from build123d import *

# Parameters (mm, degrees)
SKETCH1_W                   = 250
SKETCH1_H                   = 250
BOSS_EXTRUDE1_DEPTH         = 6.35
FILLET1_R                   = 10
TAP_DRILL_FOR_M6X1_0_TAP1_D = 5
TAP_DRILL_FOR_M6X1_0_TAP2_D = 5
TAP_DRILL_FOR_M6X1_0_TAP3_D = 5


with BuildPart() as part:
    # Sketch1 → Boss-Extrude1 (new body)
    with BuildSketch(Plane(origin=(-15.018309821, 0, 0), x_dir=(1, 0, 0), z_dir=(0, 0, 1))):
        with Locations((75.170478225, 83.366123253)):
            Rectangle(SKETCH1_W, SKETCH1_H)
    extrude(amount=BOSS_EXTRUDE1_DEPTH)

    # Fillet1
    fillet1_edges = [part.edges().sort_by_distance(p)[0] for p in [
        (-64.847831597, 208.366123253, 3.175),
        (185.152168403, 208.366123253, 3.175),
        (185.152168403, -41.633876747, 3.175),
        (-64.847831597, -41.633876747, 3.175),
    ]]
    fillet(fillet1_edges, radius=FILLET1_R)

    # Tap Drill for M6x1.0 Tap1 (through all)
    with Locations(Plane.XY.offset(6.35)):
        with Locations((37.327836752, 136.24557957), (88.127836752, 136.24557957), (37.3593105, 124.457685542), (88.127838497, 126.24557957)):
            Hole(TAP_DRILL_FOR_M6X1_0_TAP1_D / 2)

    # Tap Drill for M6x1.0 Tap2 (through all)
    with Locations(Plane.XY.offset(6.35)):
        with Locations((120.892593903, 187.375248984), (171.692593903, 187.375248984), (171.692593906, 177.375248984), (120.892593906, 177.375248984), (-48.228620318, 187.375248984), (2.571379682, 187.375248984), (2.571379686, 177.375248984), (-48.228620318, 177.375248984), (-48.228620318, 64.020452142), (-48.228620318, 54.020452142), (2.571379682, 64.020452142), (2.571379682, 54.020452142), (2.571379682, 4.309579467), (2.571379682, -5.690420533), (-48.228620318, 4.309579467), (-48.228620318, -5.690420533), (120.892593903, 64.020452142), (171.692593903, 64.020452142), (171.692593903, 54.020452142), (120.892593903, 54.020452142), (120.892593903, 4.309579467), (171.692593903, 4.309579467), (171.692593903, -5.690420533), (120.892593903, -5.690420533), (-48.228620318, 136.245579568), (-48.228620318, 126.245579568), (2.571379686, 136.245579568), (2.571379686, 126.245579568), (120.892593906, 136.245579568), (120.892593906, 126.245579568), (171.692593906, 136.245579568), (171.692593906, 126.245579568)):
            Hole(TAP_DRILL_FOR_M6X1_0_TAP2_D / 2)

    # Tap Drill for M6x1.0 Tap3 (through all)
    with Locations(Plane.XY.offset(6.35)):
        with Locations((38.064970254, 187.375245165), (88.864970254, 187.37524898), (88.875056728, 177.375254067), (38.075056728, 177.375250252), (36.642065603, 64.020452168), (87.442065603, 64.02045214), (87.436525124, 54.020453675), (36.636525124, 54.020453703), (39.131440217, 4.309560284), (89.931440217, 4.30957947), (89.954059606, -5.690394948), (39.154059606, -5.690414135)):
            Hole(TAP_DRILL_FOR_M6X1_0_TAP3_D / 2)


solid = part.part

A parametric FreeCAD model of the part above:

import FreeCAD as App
import Part
import Sketcher
Q = App.Units.Quantity


def edges_at(feature, points):
    """Names of the edges that pass closest to the given points."""
    edges = feature.Shape.Edges
    near = lambda p: min(range(len(edges)), key=lambda i: edges[i].distToShape(Part.Vertex(*p))[0])
    return sorted({f"Edge{near(p) + 1}" for p in points})


def add_polygon(sketch, points):
    """Adds a closed chain of lines whose ends are joined by coincident constraints."""
    first, n = sketch.GeometryCount, len(points)
    for a, b in zip(points, points[1:] + points[:1]):
        sketch.addGeometry(Part.LineSegment(App.Vector(*a, 0), App.Vector(*b, 0)), False)
    for i in range(n):
        sketch.addConstraint(Sketcher.Constraint("Coincident", first + i, 2, first + (i + 1) % n, 1))

doc = App.newDocument("Part")
body = doc.addObject("PartDesign::Body", "Body")

# Sketch on XY plane
sketch1 = doc.addObject("Sketcher::SketchObject", "Sketch")
body.addObject(sketch1)
sketch1.AttachmentSupport = (doc.XY_Plane, [""])
sketch1.MapMode = "FlatFace"
add_polygon(sketch1, [(-65, 208), (-65, -42), (185, -42), (185, 208)])  # lines 0-3
sketch1.addConstraint(Sketcher.Constraint("Vertical", 0))
sketch1.addConstraint(Sketcher.Constraint("Horizontal", 1))
sketch1.addConstraint(Sketcher.Constraint("Vertical", 2))
sketch1.addConstraint(Sketcher.Constraint("Horizontal", 3))
sketch1.addConstraint(Sketcher.Constraint("Equal", 3, 0))
sketch1.addConstraint(Sketcher.Constraint("DistanceX", 1, 1, 1, 2, Q("250 mm")))
sketch1.addConstraint(Sketcher.Constraint("DistanceX", 0, 2, -1, 1, Q("64.847832 mm")))
sketch1.addConstraint(Sketcher.Constraint("DistanceY", 0, 2, -1, 1, Q("41.633877 mm")))
pad1 = doc.addObject("PartDesign::Pad", "Pad")
body.addObject(pad1)
pad1.Profile = sketch1
pad1.Length = 6.35
doc.recompute()

fillet = doc.addObject("PartDesign::Fillet", "Fillet")
body.addObject(fillet)
fillet.Base = (pad1, edges_at(pad1, [
    (-64.848, 208.366, 3.175),
    (185.152, 208.366, 3.175),
    (185.152, -41.634, 3.175),
    (-64.848, -41.634, 3.175),
]))
fillet.Radius = 10

# Sketch on XY plane
sketch2 = doc.addObject("Sketcher::SketchObject", "Sketch001")
body.addObject(sketch2)
sketch2.AttachmentSupport = (doc.XY_Plane, [""])
sketch2.MapMode = "FlatFace"
sketch2.AttachmentOffset = App.Placement(App.Vector(0, 0, 6.35), App.Rotation())
sketch2.addGeometry(Part.Circle(App.Vector(37.3, 136.2, 0), App.Vector(0, 0, 1), 2.5), False)
sketch2.addGeometry(Part.Circle(App.Vector(88.1, 136.2, 0), App.Vector(0, 0, 1), 2.5), False)
sketch2.addGeometry(Part.Circle(App.Vector(37.4, 124.5, 0), App.Vector(0, 0, 1), 2.5), False)
sketch2.addGeometry(Part.Circle(App.Vector(88.1, 126.2, 0), App.Vector(0, 0, 1), 2.5), False)
sketch2.addConstraint(Sketcher.Constraint("Equal", 0, 1))
sketch2.addConstraint(Sketcher.Constraint("Equal", 1, 2))
sketch2.addConstraint(Sketcher.Constraint("Equal", 2, 3))
sketch2.addConstraint(Sketcher.Constraint("Horizontal", 0, 3, 1, 3))
sketch2.addConstraint(Sketcher.Constraint("Vertical", 1, 3, 3, 3))
sketch2.addConstraint(Sketcher.Constraint("Diameter", 0, Q("5 mm")))
sketch2.addConstraint(Sketcher.Constraint("DistanceY", 3, 3, 1, 3, Q("10 mm")))
sketch2.addConstraint(Sketcher.Constraint("DistanceX", 0, 3, 1, 3, Q("50.8 mm")))
sketch2.addConstraint(Sketcher.Constraint("DistanceY", -1, 1, 0, 3, Q("136.24558 mm")))
sketch2.addConstraint(Sketcher.Constraint("DistanceX", -1, 1, 2, 3, Q("37.35931 mm")))
sketch2.addConstraint(Sketcher.Constraint("DistanceX", -1, 1, 3, 3, Q("88.127838 mm")))
sketch2.addConstraint(Sketcher.Constraint("DistanceY", -1, 1, 2, 3, Q("124.457686 mm")))
doc.recompute()
hole = doc.addObject("PartDesign::Hole", "Hole")
body.addObject(hole)
hole.Profile = sketch2
hole.ThreadType = "None"
hole.Diameter = 5
hole.DepthType = "ThroughAll"

# Sketch on XY plane
sketch3 = doc.addObject("Sketcher::SketchObject", "Sketch002")
body.addObject(sketch3)
sketch3.AttachmentSupport = (doc.XY_Plane, [""])
sketch3.MapMode = "FlatFace"
sketch3.AttachmentOffset = App.Placement(App.Vector(0, 0, 6.35), App.Rotation())
sketch3.addGeometry(Part.Circle(App.Vector(120.9, 187.4, 0), App.Vector(0, 0, 1), 2.5), False)
sketch3.addGeometry(Part.Circle(App.Vector(171.7, 187.4, 0), App.Vector(0, 0, 1), 2.5), False)
sketch3.addGeometry(Part.Circle(App.Vector(171.7, 177.4, 0), App.Vector(0, 0, 1), 2.5), False)
sketch3.addGeometry(Part.Circle(App.Vector(120.9, 177.4, 0), App.Vector(0, 0, 1), 2.5), False)
sketch3.addGeometry(Part.Circle(App.Vector(-48.2, 187.4, 0), App.Vector(0, 0, 1), 2.5), False)
sketch3.addGeometry(Part.Circle(App.Vector(2.6, 187.4, 0), App.Vector(0, 0, 1), 2.5), False)
sketch3.addGeometry(Part.Circle(App.Vector(2.6, 177.4, 0), App.Vector(0, 0, 1), 2.5), False)
sketch3.addGeometry(Part.Circle(App.Vector(-48.2, 177.4, 0), App.Vector(0, 0, 1), 2.5), False)
sketch3.addGeometry(Part.Circle(App.Vector(-48.2, 64, 0), App.Vector(0, 0, 1), 2.5), False)
sketch3.addGeometry(Part.Circle(App.Vector(-48.2, 54, 0), App.Vector(0, 0, 1), 2.5), False)
sketch3.addGeometry(Part.Circle(App.Vector(2.6, 64, 0), App.Vector(0, 0, 1), 2.5), False)
sketch3.addGeometry(Part.Circle(App.Vector(2.6, 54, 0), App.Vector(0, 0, 1), 2.5), False)
sketch3.addGeometry(Part.Circle(App.Vector(2.6, 4.3, 0), App.Vector(0, 0, 1), 2.5), False)
sketch3.addGeometry(Part.Circle(App.Vector(2.6, -5.7, 0), App.Vector(0, 0, 1), 2.5), False)
sketch3.addGeometry(Part.Circle(App.Vector(-48.2, 4.3, 0), App.Vector(0, 0, 1), 2.5), False)
sketch3.addGeometry(Part.Circle(App.Vector(-48.2, -5.7, 0), App.Vector(0, 0, 1), 2.5), False)
sketch3.addGeometry(Part.Circle(App.Vector(120.9, 64, 0), App.Vector(0, 0, 1), 2.5), False)
sketch3.addGeometry(Part.Circle(App.Vector(171.7, 64, 0), App.Vector(0, 0, 1), 2.5), False)
sketch3.addGeometry(Part.Circle(App.Vector(171.7, 54, 0), App.Vector(0, 0, 1), 2.5), False)
sketch3.addGeometry(Part.Circle(App.Vector(120.9, 54, 0), App.Vector(0, 0, 1), 2.5), False)
sketch3.addGeometry(Part.Circle(App.Vector(120.9, 4.3, 0), App.Vector(0, 0, 1), 2.5), False)
sketch3.addGeometry(Part.Circle(App.Vector(171.7, 4.3, 0), App.Vector(0, 0, 1), 2.5), False)
sketch3.addGeometry(Part.Circle(App.Vector(171.7, -5.7, 0), App.Vector(0, 0, 1), 2.5), False)
sketch3.addGeometry(Part.Circle(App.Vector(120.9, -5.7, 0), App.Vector(0, 0, 1), 2.5), False)
sketch3.addGeometry(Part.Circle(App.Vector(-48.2, 136.2, 0), App.Vector(0, 0, 1), 2.5), False)
sketch3.addGeometry(Part.Circle(App.Vector(-48.2, 126.2, 0), App.Vector(0, 0, 1), 2.5), False)
sketch3.addGeometry(Part.Circle(App.Vector(2.6, 136.2, 0), App.Vector(0, 0, 1), 2.5), False)
sketch3.addGeometry(Part.Circle(App.Vector(2.6, 126.2, 0), App.Vector(0, 0, 1), 2.5), False)
sketch3.addGeometry(Part.Circle(App.Vector(120.9, 136.2, 0), App.Vector(0, 0, 1), 2.5), False)
sketch3.addGeometry(Part.Circle(App.Vector(120.9, 126.2, 0), App.Vector(0, 0, 1), 2.5), False)
sketch3.addGeometry(Part.Circle(App.Vector(171.7, 136.2, 0), App.Vector(0, 0, 1), 2.5), False)
sketch3.addGeometry(Part.Circle(App.Vector(171.7, 126.2, 0), App.Vector(0, 0, 1), 2.5), False)
sketch3.addConstraint(Sketcher.Constraint("Equal", 0, 1))
sketch3.addConstraint(Sketcher.Constraint("Equal", 1, 2))
sketch3.addConstraint(Sketcher.Constraint("Equal", 2, 3))
sketch3.addConstraint(Sketcher.Constraint("Equal", 3, 4))
sketch3.addConstraint(Sketcher.Constraint("Equal", 4, 5))
sketch3.addConstraint(Sketcher.Constraint("Equal", 5, 6))
sketch3.addConstraint(Sketcher.Constraint("Equal", 6, 7))
sketch3.addConstraint(Sketcher.Constraint("Equal", 7, 8))
sketch3.addConstraint(Sketcher.Constraint("Equal", 8, 9))
sketch3.addConstraint(Sketcher.Constraint("Equal", 9, 10))
sketch3.addConstraint(Sketcher.Constraint("Equal", 10, 11))
sketch3.addConstraint(Sketcher.Constraint("Equal", 11, 12))
sketch3.addConstraint(Sketcher.Constraint("Equal", 12, 13))
sketch3.addConstraint(Sketcher.Constraint("Equal", 13, 14))
sketch3.addConstraint(Sketcher.Constraint("Equal", 14, 15))
sketch3.addConstraint(Sketcher.Constraint("Equal", 15, 16))
sketch3.addConstraint(Sketcher.Constraint("Equal", 16, 17))
sketch3.addConstraint(Sketcher.Constraint("Equal", 17, 18))
sketch3.addConstraint(Sketcher.Constraint("Equal", 18, 19))
sketch3.addConstraint(Sketcher.Constraint("Equal", 19, 20))
sketch3.addConstraint(Sketcher.Constraint("Equal", 20, 21))
sketch3.addConstraint(Sketcher.Constraint("Equal", 21, 22))
sketch3.addConstraint(Sketcher.Constraint("Equal", 22, 23))
sketch3.addConstraint(Sketcher.Constraint("Equal", 23, 24))
sketch3.addConstraint(Sketcher.Constraint("Equal", 24, 25))
sketch3.addConstraint(Sketcher.Constraint("Equal", 25, 26))
sketch3.addConstraint(Sketcher.Constraint("Equal", 26, 27))
sketch3.addConstraint(Sketcher.Constraint("Equal", 27, 28))
sketch3.addConstraint(Sketcher.Constraint("Equal", 28, 29))
sketch3.addConstraint(Sketcher.Constraint("Equal", 29, 30))
sketch3.addConstraint(Sketcher.Constraint("Equal", 30, 31))
sketch3.addConstraint(Sketcher.Constraint("Horizontal", 0, 3, 1, 3))
sketch3.addConstraint(Sketcher.Constraint("Horizontal", 2, 3, 3, 3))
sketch3.addConstraint(Sketcher.Constraint("Horizontal", 1, 3, 4, 3))
sketch3.addConstraint(Sketcher.Constraint("Horizontal", 4, 3, 5, 3))
sketch3.addConstraint(Sketcher.Constraint("Horizontal", 3, 3, 6, 3))
sketch3.addConstraint(Sketcher.Constraint("Horizontal", 6, 3, 7, 3))
sketch3.addConstraint(Sketcher.Constraint("Horizontal", 8, 3, 10, 3))
sketch3.addConstraint(Sketcher.Constraint("Horizontal", 9, 3, 11, 3))
sketch3.addConstraint(Sketcher.Constraint("Horizontal", 12, 3, 14, 3))
sketch3.addConstraint(Sketcher.Constraint("Horizontal", 13, 3, 15, 3))
sketch3.addConstraint(Sketcher.Constraint("Horizontal", 10, 3, 16, 3))
sketch3.addConstraint(Sketcher.Constraint("Horizontal", 16, 3, 17, 3))
sketch3.addConstraint(Sketcher.Constraint("Horizontal", 11, 3, 18, 3))
sketch3.addConstraint(Sketcher.Constraint("Horizontal", 18, 3, 19, 3))
sketch3.addConstraint(Sketcher.Constraint("Horizontal", 14, 3, 20, 3))
sketch3.addConstraint(Sketcher.Constraint("Horizontal", 20, 3, 21, 3))
sketch3.addConstraint(Sketcher.Constraint("Horizontal", 15, 3, 22, 3))
sketch3.addConstraint(Sketcher.Constraint("Horizontal", 22, 3, 23, 3))
sketch3.addConstraint(Sketcher.Constraint("Horizontal", 24, 3, 26, 3))
sketch3.addConstraint(Sketcher.Constraint("Horizontal", 25, 3, 27, 3))
sketch3.addConstraint(Sketcher.Constraint("Horizontal", 26, 3, 28, 3))
sketch3.addConstraint(Sketcher.Constraint("Horizontal", 27, 3, 29, 3))
sketch3.addConstraint(Sketcher.Constraint("Horizontal", 28, 3, 30, 3))
sketch3.addConstraint(Sketcher.Constraint("Horizontal", 29, 3, 31, 3))
sketch3.addConstraint(Sketcher.Constraint("Vertical", 1, 3, 2, 3))
sketch3.addConstraint(Sketcher.Constraint("Vertical", 0, 3, 3, 3))
sketch3.addConstraint(Sketcher.Constraint("Vertical", 5, 3, 6, 3))
sketch3.addConstraint(Sketcher.Constraint("Vertical", 4, 3, 7, 3))
sketch3.addConstraint(Sketcher.Constraint("Vertical", 7, 3, 8, 3))
sketch3.addConstraint(Sketcher.Constraint("Vertical", 8, 3, 9, 3))
sketch3.addConstraint(Sketcher.Constraint("Vertical", 6, 3, 10, 3))
sketch3.addConstraint(Sketcher.Constraint("Vertical", 10, 3, 11, 3))
sketch3.addConstraint(Sketcher.Constraint("Vertical", 11, 3, 12, 3))
sketch3.addConstraint(Sketcher.Constraint("Vertical", 12, 3, 13, 3))
sketch3.addConstraint(Sketcher.Constraint("Vertical", 9, 3, 14, 3))
sketch3.addConstraint(Sketcher.Constraint("Vertical", 14, 3, 15, 3))
sketch3.addConstraint(Sketcher.Constraint("Vertical", 3, 3, 16, 3))
sketch3.addConstraint(Sketcher.Constraint("Vertical", 2, 3, 17, 3))
sketch3.addConstraint(Sketcher.Constraint("Vertical", 17, 3, 18, 3))
sketch3.addConstraint(Sketcher.Constraint("Vertical", 16, 3, 19, 3))
sketch3.addConstraint(Sketcher.Constraint("Vertical", 19, 3, 20, 3))
sketch3.addConstraint(Sketcher.Constraint("Vertical", 18, 3, 21, 3))
sketch3.addConstraint(Sketcher.Constraint("Vertical", 21, 3, 22, 3))
sketch3.addConstraint(Sketcher.Constraint("Vertical", 20, 3, 23, 3))
sketch3.addConstraint(Sketcher.Constraint("Vertical", 15, 3, 24, 3))
sketch3.addConstraint(Sketcher.Constraint("Vertical", 24, 3, 25, 3))
sketch3.addConstraint(Sketcher.Constraint("Vertical", 13, 3, 26, 3))
sketch3.addConstraint(Sketcher.Constraint("Vertical", 26, 3, 27, 3))
sketch3.addConstraint(Sketcher.Constraint("Vertical", 23, 3, 28, 3))
sketch3.addConstraint(Sketcher.Constraint("Vertical", 28, 3, 29, 3))
sketch3.addConstraint(Sketcher.Constraint("Vertical", 22, 3, 30, 3))
sketch3.addConstraint(Sketcher.Constraint("Vertical", 30, 3, 31, 3))
sketch3.addConstraint(Sketcher.Constraint("Diameter", 0, Q("5 mm")))
sketch3.addConstraint(Sketcher.Constraint("DistanceY", 2, 3, 1, 3, Q("10 mm")))
sketch3.addConstraint(Sketcher.Constraint("DistanceY", 9, 3, 8, 3, Q("10 mm")))
sketch3.addConstraint(Sketcher.Constraint("DistanceY", 13, 3, 12, 3, Q("10 mm")))
sketch3.addConstraint(Sketcher.Constraint("DistanceY", 25, 3, 24, 3, Q("10 mm")))
sketch3.addConstraint(Sketcher.Constraint("DistanceX", 0, 3, 1, 3, Q("50.8 mm")))
sketch3.addConstraint(Sketcher.Constraint("DistanceX", 4, 3, 5, 3, Q("50.8 mm")))
sketch3.addConstraint(Sketcher.Constraint("DistanceY", -1, 1, 0, 3, Q("187.375249 mm")))
sketch3.addConstraint(Sketcher.Constraint("DistanceX", 4, 3, -1, 1, Q("48.22862 mm")))
sketch3.addConstraint(Sketcher.Constraint("DistanceY", -1, 1, 12, 3, Q("4.309579 mm")))
sketch3.addConstraint(Sketcher.Constraint("DistanceY", -1, 1, 24, 3, Q("136.24558 mm")))
sketch3.addConstraint(Sketcher.Constraint("DistanceX", -1, 1, 0, 3, Q("120.892594 mm")))
sketch3.addConstraint(Sketcher.Constraint("DistanceY", -1, 1, 8, 3, Q("64.020452 mm")))
doc.recompute()
hole2 = doc.addObject("PartDesign::Hole", "Hole001")
body.addObject(hole2)
hole2.Profile = sketch3
hole2.ThreadType = "None"
hole2.Diameter = 5
hole2.DepthType = "ThroughAll"

# Sketch on XY plane
sketch4 = doc.addObject("Sketcher::SketchObject", "Sketch003")
body.addObject(sketch4)
sketch4.AttachmentSupport = (doc.XY_Plane, [""])
sketch4.MapMode = "FlatFace"
sketch4.AttachmentOffset = App.Placement(App.Vector(0, 0, 6.35), App.Rotation())
sketch4.addGeometry(Part.Circle(App.Vector(38.1, 187.4, 0), App.Vector(0, 0, 1), 2.5), False)
sketch4.addGeometry(Part.Circle(App.Vector(88.9, 187.4, 0), App.Vector(0, 0, 1), 2.5), False)
sketch4.addGeometry(Part.Circle(App.Vector(88.9, 177.4, 0), App.Vector(0, 0, 1), 2.5), False)
sketch4.addGeometry(Part.Circle(App.Vector(38.1, 177.4, 0), App.Vector(0, 0, 1), 2.5), False)
sketch4.addGeometry(Part.Circle(App.Vector(36.6, 64, 0), App.Vector(0, 0, 1), 2.5), False)
sketch4.addGeometry(Part.Circle(App.Vector(87.4, 64, 0), App.Vector(0, 0, 1), 2.5), False)
sketch4.addGeometry(Part.Circle(App.Vector(87.4, 54, 0), App.Vector(0, 0, 1), 2.5), False)
sketch4.addGeometry(Part.Circle(App.Vector(36.6, 54, 0), App.Vector(0, 0, 1), 2.5), False)
sketch4.addGeometry(Part.Circle(App.Vector(39.1, 4.3, 0), App.Vector(0, 0, 1), 2.5), False)
sketch4.addGeometry(Part.Circle(App.Vector(89.9, 4.3, 0), App.Vector(0, 0, 1), 2.5), False)
sketch4.addGeometry(Part.Circle(App.Vector(90, -5.7, 0), App.Vector(0, 0, 1), 2.5), False)
sketch4.addGeometry(Part.Circle(App.Vector(39.2, -5.7, 0), App.Vector(0, 0, 1), 2.5), False)
sketch4.addConstraint(Sketcher.Constraint("Equal", 0, 1))
sketch4.addConstraint(Sketcher.Constraint("Equal", 1, 2))
sketch4.addConstraint(Sketcher.Constraint("Equal", 2, 3))
sketch4.addConstraint(Sketcher.Constraint("Equal", 3, 4))
sketch4.addConstraint(Sketcher.Constraint("Equal", 4, 5))
sketch4.addConstraint(Sketcher.Constraint("Equal", 5, 6))
sketch4.addConstraint(Sketcher.Constraint("Equal", 6, 7))
sketch4.addConstraint(Sketcher.Constraint("Equal", 7, 8))
sketch4.addConstraint(Sketcher.Constraint("Equal", 8, 9))
sketch4.addConstraint(Sketcher.Constraint("Equal", 9, 10))
sketch4.addConstraint(Sketcher.Constraint("Equal", 10, 11))
sketch4.addConstraint(Sketcher.Constraint("Horizontal", 4, 3, 5, 3))
sketch4.addConstraint(Sketcher.Constraint("Horizontal", 6, 3, 7, 3))
sketch4.addConstraint(Sketcher.Constraint("Diameter", 0, Q("5 mm")))
sketch4.addConstraint(Sketcher.Constraint("DistanceY", 3, 3, 1, 3, Q("9.999999 mm")))
sketch4.addConstraint(Sketcher.Constraint("DistanceY", 6, 3, 5, 3, Q("9.999998 mm")))
sketch4.addConstraint(Sketcher.Constraint("DistanceX", 0, 3, 1, 3, Q("50.8 mm")))
sketch4.addConstraint(Sketcher.Constraint("DistanceX", 3, 3, 2, 3, Q("50.8 mm")))
sketch4.addConstraint(Sketcher.Constraint("DistanceX", 4, 3, 5, 3, Q("50.8 mm")))
sketch4.addConstraint(Sketcher.Constraint("DistanceX", 7, 3, 6, 3, Q("50.8 mm")))
sketch4.addConstraint(Sketcher.Constraint("DistanceX", 8, 3, 9, 3, Q("50.8 mm")))
sketch4.addConstraint(Sketcher.Constraint("DistanceX", 11, 3, 10, 3, Q("50.8 mm")))
sketch4.addConstraint(Sketcher.Constraint("DistanceY", 4, 3, 3, 3, Q("113.354798 mm")))
sketch4.addConstraint(Sketcher.Constraint("DistanceY", 4, 3, 2, 3, Q("113.354802 mm")))
sketch4.addConstraint(Sketcher.Constraint("DistanceX", -1, 1, 0, 3, Q("38.06497 mm")))
sketch4.addConstraint(Sketcher.Constraint("DistanceY", -1, 1, 1, 3, Q("187.375249 mm")))
sketch4.addConstraint(Sketcher.Constraint("DistanceX", -1, 1, 8, 3, Q("39.13144 mm")))
sketch4.addConstraint(Sketcher.Constraint("DistanceY", -1, 1, 8, 3, Q("4.30956 mm")))
sketch4.addConstraint(Sketcher.Constraint("DistanceY", -1, 1, 9, 3, Q("4.309579 mm")))
sketch4.addConstraint(Sketcher.Constraint("DistanceX", -1, 1, 10, 3, Q("89.95406 mm")))
sketch4.addConstraint(Sketcher.Constraint("DistanceY", 2, 3, 0, 3, Q("9.999991 mm")))
sketch4.addConstraint(Sketcher.Constraint("DistanceX", 4, 3, 3, 3, Q("1.432991 mm")))
sketch4.addConstraint(Sketcher.Constraint("DistanceX", 6, 3, 5, 3, Q("0.00554 mm")))
sketch4.addConstraint(Sketcher.Constraint("DistanceY", 10, 3, 6, 3, Q("59.710849 mm")))
sketch4.addConstraint(Sketcher.Constraint("DistanceX", -1, 1, 2, 3, Q("88.875057 mm")))
sketch4.addConstraint(Sketcher.Constraint("DistanceY", 11, 3, -1, 1, Q("5.690414 mm")))
doc.recompute()
hole3 = doc.addObject("PartDesign::Hole", "Hole002")
body.addObject(hole3)
hole3.Profile = sketch4
hole3.ThreadType = "None"
hole3.Diameter = 5
hole3.DepthType = "ThroughAll"

doc.recompute()
